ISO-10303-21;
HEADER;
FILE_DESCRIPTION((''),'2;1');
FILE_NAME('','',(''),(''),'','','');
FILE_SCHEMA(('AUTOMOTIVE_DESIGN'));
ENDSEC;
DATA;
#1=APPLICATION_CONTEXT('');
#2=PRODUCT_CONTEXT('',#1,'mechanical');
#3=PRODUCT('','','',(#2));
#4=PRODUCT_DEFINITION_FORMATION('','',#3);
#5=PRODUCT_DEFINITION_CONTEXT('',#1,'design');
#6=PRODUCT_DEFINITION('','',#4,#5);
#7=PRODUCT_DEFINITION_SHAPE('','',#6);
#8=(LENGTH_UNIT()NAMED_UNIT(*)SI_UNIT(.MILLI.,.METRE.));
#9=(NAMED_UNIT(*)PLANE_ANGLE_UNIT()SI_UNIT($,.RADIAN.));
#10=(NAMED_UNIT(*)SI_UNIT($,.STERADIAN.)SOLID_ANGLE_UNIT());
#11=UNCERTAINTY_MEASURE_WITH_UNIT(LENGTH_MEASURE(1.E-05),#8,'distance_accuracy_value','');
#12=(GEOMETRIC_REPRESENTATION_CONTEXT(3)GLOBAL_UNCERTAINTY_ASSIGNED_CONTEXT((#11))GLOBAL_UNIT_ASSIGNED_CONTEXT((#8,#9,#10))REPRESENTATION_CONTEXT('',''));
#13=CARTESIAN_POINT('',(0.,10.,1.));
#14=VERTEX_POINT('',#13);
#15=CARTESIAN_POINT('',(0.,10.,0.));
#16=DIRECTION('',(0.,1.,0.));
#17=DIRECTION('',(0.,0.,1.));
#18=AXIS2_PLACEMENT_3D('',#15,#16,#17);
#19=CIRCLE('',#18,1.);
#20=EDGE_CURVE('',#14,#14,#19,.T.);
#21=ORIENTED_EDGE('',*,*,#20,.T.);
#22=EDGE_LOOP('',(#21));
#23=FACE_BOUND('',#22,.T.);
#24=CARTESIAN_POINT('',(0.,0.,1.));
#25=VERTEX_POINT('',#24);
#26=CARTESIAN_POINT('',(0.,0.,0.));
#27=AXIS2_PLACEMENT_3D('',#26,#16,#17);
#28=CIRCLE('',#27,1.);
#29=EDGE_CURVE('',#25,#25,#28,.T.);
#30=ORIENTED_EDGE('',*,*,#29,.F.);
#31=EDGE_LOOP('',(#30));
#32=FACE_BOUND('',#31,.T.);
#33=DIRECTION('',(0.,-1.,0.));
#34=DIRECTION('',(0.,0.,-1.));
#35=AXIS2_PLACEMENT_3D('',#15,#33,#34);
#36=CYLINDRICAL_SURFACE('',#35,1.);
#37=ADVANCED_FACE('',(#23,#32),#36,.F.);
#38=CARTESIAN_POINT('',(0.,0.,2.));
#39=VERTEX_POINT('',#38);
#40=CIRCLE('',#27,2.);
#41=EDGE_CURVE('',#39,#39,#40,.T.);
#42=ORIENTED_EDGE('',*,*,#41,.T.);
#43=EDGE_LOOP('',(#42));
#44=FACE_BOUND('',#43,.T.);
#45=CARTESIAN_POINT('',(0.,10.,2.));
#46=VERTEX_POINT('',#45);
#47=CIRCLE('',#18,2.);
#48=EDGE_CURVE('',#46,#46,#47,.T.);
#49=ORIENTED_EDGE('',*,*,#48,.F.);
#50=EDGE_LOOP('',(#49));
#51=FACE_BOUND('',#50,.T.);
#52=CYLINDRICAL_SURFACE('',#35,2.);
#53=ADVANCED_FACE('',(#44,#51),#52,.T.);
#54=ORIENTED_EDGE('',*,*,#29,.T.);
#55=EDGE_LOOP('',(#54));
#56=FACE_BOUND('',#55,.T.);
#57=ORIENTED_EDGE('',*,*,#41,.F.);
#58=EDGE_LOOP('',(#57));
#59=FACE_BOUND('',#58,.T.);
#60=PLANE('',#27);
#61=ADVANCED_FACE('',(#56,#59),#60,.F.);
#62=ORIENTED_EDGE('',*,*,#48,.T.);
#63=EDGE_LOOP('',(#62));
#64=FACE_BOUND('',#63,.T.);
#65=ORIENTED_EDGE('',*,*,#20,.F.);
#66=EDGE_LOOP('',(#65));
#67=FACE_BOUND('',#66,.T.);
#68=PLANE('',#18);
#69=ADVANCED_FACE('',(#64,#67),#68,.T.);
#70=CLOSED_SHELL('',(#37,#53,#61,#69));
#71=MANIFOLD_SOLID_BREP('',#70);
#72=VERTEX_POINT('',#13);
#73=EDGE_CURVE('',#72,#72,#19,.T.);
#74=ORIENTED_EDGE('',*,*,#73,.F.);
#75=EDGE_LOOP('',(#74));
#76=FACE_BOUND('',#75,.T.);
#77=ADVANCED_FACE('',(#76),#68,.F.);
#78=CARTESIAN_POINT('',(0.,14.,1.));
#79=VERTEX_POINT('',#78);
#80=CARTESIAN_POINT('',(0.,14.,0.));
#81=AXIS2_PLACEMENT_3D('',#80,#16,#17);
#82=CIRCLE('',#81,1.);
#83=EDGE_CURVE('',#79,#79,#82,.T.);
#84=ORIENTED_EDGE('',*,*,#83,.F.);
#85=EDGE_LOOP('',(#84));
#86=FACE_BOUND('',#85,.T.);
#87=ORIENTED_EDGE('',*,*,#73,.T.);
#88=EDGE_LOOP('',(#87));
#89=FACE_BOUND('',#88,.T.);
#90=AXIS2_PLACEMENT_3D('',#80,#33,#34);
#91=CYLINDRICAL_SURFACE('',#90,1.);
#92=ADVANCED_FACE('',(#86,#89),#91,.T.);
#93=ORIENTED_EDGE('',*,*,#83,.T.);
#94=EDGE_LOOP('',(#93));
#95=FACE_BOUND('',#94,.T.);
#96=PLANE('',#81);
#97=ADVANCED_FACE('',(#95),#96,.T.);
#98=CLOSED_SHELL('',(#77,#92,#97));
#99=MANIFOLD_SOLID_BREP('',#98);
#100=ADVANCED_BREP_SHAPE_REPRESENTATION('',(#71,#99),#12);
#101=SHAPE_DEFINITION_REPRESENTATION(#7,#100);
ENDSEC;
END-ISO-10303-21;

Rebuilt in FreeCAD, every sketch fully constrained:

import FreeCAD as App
import Part
import Sketcher

V = App.Vector

doc = App.newDocument("Part")
body = doc.addObject("PartDesign::Body", "Body")

# Sketch on XZ plane
sketch1 = body.newObject("Sketcher::SketchObject", "Sketch")
sketch1.AttachmentSupport = (doc.getObject("XZ_Plane"), [""])
sketch1.MapMode = "FlatFace"
sketch1.addGeometry(Part.Circle(V(0, 0, 0), V(0, 0, 1), 2), False)
sketch1.addGeometry(Part.Circle(V(0, 0, 0), V(0, 0, 1), 1), False)
sketch1.addConstraint(Sketcher.Constraint("Coincident", 0, 3, -1, 1))
sketch1.addConstraint(Sketcher.Constraint("Coincident", 1, 3, -1, 1))
sketch1.addConstraint(Sketcher.Constraint("Diameter", 0, 4.0))
sketch1.addConstraint(Sketcher.Constraint("Diameter", 1, 2.0))
pad1 = body.newObject("PartDesign::Pad", "Pad")
pad1.Profile = sketch1
pad1.Length = 10
pad1.Reversed = True
body2 = doc.addObject("PartDesign::Body", "Body001")

# Sketch on XZ plane
sketch2 = body2.newObject("Sketcher::SketchObject", "Sketch001")
sketch2.AttachmentSupport = (doc.getObject("XZ_Plane001"), [""])
sketch2.MapMode = "FlatFace"
sketch2.AttachmentOffset = App.Placement(V(0, 0, -10), App.Rotation())
sketch2.addGeometry(Part.Circle(V(0, 0, 0), V(0, 0, 1), 1), False)
sketch2.addConstraint(Sketcher.Constraint("Coincident", 0, 3, -1, 1))
sketch2.addConstraint(Sketcher.Constraint("Diameter", 0, 2.0))
pad2 = body2.newObject("PartDesign::Pad", "Pad001")
pad2.Profile = sketch2
pad2.Length = 4
pad2.Reversed = True

doc.recompute()
